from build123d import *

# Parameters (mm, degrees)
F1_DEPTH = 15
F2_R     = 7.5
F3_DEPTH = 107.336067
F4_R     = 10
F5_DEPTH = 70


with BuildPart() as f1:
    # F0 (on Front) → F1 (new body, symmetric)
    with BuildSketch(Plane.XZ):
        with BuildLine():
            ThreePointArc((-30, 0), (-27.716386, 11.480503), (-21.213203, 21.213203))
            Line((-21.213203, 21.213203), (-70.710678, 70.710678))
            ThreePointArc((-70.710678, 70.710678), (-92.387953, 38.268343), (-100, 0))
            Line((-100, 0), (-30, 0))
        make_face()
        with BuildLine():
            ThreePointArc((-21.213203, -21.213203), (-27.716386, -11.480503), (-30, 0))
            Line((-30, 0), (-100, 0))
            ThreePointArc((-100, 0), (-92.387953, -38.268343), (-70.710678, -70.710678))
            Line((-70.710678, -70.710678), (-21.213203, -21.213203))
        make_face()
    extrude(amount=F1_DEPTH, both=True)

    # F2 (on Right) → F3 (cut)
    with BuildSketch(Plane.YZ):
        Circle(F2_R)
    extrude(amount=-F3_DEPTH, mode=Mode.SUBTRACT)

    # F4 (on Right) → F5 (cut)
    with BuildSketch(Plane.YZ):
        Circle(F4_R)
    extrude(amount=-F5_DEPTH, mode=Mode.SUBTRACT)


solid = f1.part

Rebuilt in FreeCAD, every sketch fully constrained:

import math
import FreeCAD as App
import Part
import Sketcher
from FreeCAD import Vector

doc = App.newDocument("Part")
body = doc.addObject("PartDesign::Body", "Body")

sketch1 = body.newObject("Sketcher::SketchObject", "Sketch")
sketch1.AttachmentSupport = (doc.getObject("XZ_Plane"), [""])
sketch1.MapMode = "FlatFace"
sketch1.addGeometry([
    Part.ArcOfCircle(Part.Circle(Vector(0, 0, 0), Vector(0, 0, 1), 30), math.radians(135), math.radians(180)),
    Part.LineSegment(Vector(-21, 21, 0), Vector(-71, 71, 0)),
    Part.ArcOfCircle(Part.Circle(Vector(0, 0, 0), Vector(0, 0, 1), 100), math.radians(135), math.radians(180)),
    Part.ArcOfCircle(Part.Circle(Vector(0, 0, 0), Vector(0, 0, 1), 100), math.radians(-180), math.radians(-135)),
    Part.LineSegment(Vector(-71, -71, 0), Vector(-21, -21, 0)),
    Part.ArcOfCircle(Part.Circle(Vector(0, 0, 0), Vector(0, 0, 1), 30), math.radians(180), math.radians(225)),
], False)
sketch1.addConstraint([
    Sketcher.Constraint("Coincident", 0, 1, 1, 1),
    Sketcher.Constraint("Coincident", 1, 2, 2, 1),
    Sketcher.Constraint("Tangent", 2, 2, 3, 1),
    Sketcher.Constraint("Coincident", 3, 2, 4, 1),
    Sketcher.Constraint("Coincident", 4, 2, 5, 2),
    Sketcher.Constraint("Tangent", 5, 1, 0, 2),
    Sketcher.Constraint("Coincident", 0, 3, -1, 1),
    Sketcher.Constraint("Coincident", 2, 3, -1, 1),
    Sketcher.Constraint("Equal", 2, 3),
    Sketcher.Constraint("Equal", 0, 5),
    Sketcher.Constraint("PointOnObject", 2, 2, -1),
    Sketcher.Constraint("PointOnObject", 5, 1, -1),
    Sketcher.Constraint("Perpendicular", 1, 4),
    Sketcher.Constraint("Vertical", 1, 2, 3, 2),
    Sketcher.Constraint("Vertical", 0, 1, 4, 2),
    Sketcher.Constraint("Distance", 1, 70.0),
    Sketcher.Constraint("DistanceX", 2, 2, -1, 1, 100.0),
    Sketcher.Constraint("DistanceX", 0, 1, 0, 3, 21.213199),
])
pad1 = body.newObject("PartDesign::Pad", "Pad")
pad1.Profile = sketch1
pad1.Length = 30
pad1.Midplane = True

sketch2 = body.newObject("Sketcher::SketchObject", "Sketch001")
sketch2.AttachmentSupport = (doc.getObject("YZ_Plane"), [""])
sketch2.MapMode = "FlatFace"
sketch2.addGeometry(Part.Circle(Vector(0, 0, 0), Vector(0, 0, 1), 8), False)
sketch2.addConstraint([
    Sketcher.Constraint("Coincident", 0, 3, -1, 1),
    Sketcher.Constraint("Diameter", 0, 15.0),
])
pocket1 = body.newObject("PartDesign::Pocket", "Pocket")
pocket1.Profile = sketch2
pocket1.Length = 107.336067

sketch3 = body.newObject("Sketcher::SketchObject", "Sketch002")
sketch3.AttachmentSupport = (doc.getObject("YZ_Plane"), [""])
sketch3.MapMode = "FlatFace"
sketch3.addGeometry(Part.Circle(Vector(0, 0, 0), Vector(0, 0, 1), 10), False)
sketch3.addConstraint([
    Sketcher.Constraint("Coincident", 0, 3, -1, 1),
    Sketcher.Constraint("Diameter", 0, 20.0),
])
pocket2 = body.newObject("PartDesign::Pocket", "Pocket001")
pocket2.Profile = sketch3
pocket2.Length = 70

doc.recompute()
